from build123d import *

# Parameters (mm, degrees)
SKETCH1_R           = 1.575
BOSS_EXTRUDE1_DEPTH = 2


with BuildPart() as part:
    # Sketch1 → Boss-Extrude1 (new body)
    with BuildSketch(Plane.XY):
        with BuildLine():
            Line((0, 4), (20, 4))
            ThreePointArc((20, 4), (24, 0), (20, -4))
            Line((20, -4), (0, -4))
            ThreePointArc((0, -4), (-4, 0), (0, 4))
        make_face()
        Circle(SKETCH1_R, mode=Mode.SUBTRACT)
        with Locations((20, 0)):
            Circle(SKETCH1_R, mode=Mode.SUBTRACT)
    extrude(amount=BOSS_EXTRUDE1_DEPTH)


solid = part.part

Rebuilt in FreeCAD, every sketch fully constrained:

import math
import FreeCAD as App
import Part
import Sketcher
Q = App.Units.Quantity

doc = App.newDocument("Part")
params = doc.addObject("Spreadsheet::Sheet", "Params")
for row, (alias, value) in enumerate([
    ("sketch1_radius", "4 mm"),
    ("sketch1_diameter", "3.15 mm"),
    ("sketch1_width", "20 mm"),
    ("pad1_length", "2 mm"),
], start=1):
    params.set(f"A{row}", alias)
    params.set(f"B{row}", "=" + value)
    params.setAlias(f"B{row}", alias)

body = doc.addObject("PartDesign::Body", "Body")

sketch1 = body.newObject("Sketcher::SketchObject", "Sketch")
sketch1.AttachmentSupport = (doc.getObject("XY_Plane"), [""])
sketch1.MapMode = "FlatFace"
sketch1.addGeometry(Part.LineSegment(App.Vector(20, 4, 0), App.Vector(0, 4, 0)), False)
sketch1.addGeometry(Part.ArcOfCircle(Part.Circle(App.Vector(0, 0, 0), App.Vector(0, 0, 1), 4), math.radians(90), math.radians(270)), False)
sketch1.addGeometry(Part.LineSegment(App.Vector(0, -4, 0), App.Vector(20, -4, 0)), False)
sketch1.addGeometry(Part.ArcOfCircle(Part.Circle(App.Vector(20, 0, 0), App.Vector(0, 0, 1), 4), math.radians(-90), math.radians(90)), False)
sketch1.addGeometry(Part.Circle(App.Vector(20, 0, 0), App.Vector(0, 0, 1), 1.575), False)
sketch1.addGeometry(Part.Circle(App.Vector(0, 0, 0), App.Vector(0, 0, 1), 1.575), False)
sketch1.addConstraint(Sketcher.Constraint("Tangent", 0, 2, 1, 1))
sketch1.addConstraint(Sketcher.Constraint("Tangent", 1, 2, 2, 1))
sketch1.addConstraint(Sketcher.Constraint("Tangent", 2, 2, 3, 1))
sketch1.addConstraint(Sketcher.Constraint("Tangent", 3, 2, 0, 1))
sketch1.addConstraint(Sketcher.Constraint("Horizontal", 0))
sketch1.addConstraint(Sketcher.Constraint("Horizontal", 2))
sketch1.addConstraint(Sketcher.Constraint("Coincident", 1, 3, -1, 1))
sketch1.addConstraint(Sketcher.Constraint("Coincident", 5, 3, -1, 1))
sketch1.addConstraint(Sketcher.Constraint("Coincident", 4, 3, 3, 3))
sketch1.addConstraint(Sketcher.Constraint("Equal", 4, 5))
sketch1.addConstraint(Sketcher.Constraint("Radius", 1, Q("4 mm")))
sketch1.addConstraint(Sketcher.Constraint("Diameter", 4, Q("3.15 mm")))
sketch1.addConstraint(Sketcher.Constraint("DistanceX", 0, 2, 0, 1, Q("20 mm")))
sketch1.setExpression("Constraints[10]", "Params.sketch1_radius")
sketch1.setExpression("Constraints[11]", "Params.sketch1_diameter")
sketch1.setExpression("Constraints[12]", "Params.sketch1_width")
pad1 = body.newObject("PartDesign::Pad", "Pad")
pad1.Profile = sketch1
pad1.setExpression("Length", "Params.pad1_length")

doc.recompute()
